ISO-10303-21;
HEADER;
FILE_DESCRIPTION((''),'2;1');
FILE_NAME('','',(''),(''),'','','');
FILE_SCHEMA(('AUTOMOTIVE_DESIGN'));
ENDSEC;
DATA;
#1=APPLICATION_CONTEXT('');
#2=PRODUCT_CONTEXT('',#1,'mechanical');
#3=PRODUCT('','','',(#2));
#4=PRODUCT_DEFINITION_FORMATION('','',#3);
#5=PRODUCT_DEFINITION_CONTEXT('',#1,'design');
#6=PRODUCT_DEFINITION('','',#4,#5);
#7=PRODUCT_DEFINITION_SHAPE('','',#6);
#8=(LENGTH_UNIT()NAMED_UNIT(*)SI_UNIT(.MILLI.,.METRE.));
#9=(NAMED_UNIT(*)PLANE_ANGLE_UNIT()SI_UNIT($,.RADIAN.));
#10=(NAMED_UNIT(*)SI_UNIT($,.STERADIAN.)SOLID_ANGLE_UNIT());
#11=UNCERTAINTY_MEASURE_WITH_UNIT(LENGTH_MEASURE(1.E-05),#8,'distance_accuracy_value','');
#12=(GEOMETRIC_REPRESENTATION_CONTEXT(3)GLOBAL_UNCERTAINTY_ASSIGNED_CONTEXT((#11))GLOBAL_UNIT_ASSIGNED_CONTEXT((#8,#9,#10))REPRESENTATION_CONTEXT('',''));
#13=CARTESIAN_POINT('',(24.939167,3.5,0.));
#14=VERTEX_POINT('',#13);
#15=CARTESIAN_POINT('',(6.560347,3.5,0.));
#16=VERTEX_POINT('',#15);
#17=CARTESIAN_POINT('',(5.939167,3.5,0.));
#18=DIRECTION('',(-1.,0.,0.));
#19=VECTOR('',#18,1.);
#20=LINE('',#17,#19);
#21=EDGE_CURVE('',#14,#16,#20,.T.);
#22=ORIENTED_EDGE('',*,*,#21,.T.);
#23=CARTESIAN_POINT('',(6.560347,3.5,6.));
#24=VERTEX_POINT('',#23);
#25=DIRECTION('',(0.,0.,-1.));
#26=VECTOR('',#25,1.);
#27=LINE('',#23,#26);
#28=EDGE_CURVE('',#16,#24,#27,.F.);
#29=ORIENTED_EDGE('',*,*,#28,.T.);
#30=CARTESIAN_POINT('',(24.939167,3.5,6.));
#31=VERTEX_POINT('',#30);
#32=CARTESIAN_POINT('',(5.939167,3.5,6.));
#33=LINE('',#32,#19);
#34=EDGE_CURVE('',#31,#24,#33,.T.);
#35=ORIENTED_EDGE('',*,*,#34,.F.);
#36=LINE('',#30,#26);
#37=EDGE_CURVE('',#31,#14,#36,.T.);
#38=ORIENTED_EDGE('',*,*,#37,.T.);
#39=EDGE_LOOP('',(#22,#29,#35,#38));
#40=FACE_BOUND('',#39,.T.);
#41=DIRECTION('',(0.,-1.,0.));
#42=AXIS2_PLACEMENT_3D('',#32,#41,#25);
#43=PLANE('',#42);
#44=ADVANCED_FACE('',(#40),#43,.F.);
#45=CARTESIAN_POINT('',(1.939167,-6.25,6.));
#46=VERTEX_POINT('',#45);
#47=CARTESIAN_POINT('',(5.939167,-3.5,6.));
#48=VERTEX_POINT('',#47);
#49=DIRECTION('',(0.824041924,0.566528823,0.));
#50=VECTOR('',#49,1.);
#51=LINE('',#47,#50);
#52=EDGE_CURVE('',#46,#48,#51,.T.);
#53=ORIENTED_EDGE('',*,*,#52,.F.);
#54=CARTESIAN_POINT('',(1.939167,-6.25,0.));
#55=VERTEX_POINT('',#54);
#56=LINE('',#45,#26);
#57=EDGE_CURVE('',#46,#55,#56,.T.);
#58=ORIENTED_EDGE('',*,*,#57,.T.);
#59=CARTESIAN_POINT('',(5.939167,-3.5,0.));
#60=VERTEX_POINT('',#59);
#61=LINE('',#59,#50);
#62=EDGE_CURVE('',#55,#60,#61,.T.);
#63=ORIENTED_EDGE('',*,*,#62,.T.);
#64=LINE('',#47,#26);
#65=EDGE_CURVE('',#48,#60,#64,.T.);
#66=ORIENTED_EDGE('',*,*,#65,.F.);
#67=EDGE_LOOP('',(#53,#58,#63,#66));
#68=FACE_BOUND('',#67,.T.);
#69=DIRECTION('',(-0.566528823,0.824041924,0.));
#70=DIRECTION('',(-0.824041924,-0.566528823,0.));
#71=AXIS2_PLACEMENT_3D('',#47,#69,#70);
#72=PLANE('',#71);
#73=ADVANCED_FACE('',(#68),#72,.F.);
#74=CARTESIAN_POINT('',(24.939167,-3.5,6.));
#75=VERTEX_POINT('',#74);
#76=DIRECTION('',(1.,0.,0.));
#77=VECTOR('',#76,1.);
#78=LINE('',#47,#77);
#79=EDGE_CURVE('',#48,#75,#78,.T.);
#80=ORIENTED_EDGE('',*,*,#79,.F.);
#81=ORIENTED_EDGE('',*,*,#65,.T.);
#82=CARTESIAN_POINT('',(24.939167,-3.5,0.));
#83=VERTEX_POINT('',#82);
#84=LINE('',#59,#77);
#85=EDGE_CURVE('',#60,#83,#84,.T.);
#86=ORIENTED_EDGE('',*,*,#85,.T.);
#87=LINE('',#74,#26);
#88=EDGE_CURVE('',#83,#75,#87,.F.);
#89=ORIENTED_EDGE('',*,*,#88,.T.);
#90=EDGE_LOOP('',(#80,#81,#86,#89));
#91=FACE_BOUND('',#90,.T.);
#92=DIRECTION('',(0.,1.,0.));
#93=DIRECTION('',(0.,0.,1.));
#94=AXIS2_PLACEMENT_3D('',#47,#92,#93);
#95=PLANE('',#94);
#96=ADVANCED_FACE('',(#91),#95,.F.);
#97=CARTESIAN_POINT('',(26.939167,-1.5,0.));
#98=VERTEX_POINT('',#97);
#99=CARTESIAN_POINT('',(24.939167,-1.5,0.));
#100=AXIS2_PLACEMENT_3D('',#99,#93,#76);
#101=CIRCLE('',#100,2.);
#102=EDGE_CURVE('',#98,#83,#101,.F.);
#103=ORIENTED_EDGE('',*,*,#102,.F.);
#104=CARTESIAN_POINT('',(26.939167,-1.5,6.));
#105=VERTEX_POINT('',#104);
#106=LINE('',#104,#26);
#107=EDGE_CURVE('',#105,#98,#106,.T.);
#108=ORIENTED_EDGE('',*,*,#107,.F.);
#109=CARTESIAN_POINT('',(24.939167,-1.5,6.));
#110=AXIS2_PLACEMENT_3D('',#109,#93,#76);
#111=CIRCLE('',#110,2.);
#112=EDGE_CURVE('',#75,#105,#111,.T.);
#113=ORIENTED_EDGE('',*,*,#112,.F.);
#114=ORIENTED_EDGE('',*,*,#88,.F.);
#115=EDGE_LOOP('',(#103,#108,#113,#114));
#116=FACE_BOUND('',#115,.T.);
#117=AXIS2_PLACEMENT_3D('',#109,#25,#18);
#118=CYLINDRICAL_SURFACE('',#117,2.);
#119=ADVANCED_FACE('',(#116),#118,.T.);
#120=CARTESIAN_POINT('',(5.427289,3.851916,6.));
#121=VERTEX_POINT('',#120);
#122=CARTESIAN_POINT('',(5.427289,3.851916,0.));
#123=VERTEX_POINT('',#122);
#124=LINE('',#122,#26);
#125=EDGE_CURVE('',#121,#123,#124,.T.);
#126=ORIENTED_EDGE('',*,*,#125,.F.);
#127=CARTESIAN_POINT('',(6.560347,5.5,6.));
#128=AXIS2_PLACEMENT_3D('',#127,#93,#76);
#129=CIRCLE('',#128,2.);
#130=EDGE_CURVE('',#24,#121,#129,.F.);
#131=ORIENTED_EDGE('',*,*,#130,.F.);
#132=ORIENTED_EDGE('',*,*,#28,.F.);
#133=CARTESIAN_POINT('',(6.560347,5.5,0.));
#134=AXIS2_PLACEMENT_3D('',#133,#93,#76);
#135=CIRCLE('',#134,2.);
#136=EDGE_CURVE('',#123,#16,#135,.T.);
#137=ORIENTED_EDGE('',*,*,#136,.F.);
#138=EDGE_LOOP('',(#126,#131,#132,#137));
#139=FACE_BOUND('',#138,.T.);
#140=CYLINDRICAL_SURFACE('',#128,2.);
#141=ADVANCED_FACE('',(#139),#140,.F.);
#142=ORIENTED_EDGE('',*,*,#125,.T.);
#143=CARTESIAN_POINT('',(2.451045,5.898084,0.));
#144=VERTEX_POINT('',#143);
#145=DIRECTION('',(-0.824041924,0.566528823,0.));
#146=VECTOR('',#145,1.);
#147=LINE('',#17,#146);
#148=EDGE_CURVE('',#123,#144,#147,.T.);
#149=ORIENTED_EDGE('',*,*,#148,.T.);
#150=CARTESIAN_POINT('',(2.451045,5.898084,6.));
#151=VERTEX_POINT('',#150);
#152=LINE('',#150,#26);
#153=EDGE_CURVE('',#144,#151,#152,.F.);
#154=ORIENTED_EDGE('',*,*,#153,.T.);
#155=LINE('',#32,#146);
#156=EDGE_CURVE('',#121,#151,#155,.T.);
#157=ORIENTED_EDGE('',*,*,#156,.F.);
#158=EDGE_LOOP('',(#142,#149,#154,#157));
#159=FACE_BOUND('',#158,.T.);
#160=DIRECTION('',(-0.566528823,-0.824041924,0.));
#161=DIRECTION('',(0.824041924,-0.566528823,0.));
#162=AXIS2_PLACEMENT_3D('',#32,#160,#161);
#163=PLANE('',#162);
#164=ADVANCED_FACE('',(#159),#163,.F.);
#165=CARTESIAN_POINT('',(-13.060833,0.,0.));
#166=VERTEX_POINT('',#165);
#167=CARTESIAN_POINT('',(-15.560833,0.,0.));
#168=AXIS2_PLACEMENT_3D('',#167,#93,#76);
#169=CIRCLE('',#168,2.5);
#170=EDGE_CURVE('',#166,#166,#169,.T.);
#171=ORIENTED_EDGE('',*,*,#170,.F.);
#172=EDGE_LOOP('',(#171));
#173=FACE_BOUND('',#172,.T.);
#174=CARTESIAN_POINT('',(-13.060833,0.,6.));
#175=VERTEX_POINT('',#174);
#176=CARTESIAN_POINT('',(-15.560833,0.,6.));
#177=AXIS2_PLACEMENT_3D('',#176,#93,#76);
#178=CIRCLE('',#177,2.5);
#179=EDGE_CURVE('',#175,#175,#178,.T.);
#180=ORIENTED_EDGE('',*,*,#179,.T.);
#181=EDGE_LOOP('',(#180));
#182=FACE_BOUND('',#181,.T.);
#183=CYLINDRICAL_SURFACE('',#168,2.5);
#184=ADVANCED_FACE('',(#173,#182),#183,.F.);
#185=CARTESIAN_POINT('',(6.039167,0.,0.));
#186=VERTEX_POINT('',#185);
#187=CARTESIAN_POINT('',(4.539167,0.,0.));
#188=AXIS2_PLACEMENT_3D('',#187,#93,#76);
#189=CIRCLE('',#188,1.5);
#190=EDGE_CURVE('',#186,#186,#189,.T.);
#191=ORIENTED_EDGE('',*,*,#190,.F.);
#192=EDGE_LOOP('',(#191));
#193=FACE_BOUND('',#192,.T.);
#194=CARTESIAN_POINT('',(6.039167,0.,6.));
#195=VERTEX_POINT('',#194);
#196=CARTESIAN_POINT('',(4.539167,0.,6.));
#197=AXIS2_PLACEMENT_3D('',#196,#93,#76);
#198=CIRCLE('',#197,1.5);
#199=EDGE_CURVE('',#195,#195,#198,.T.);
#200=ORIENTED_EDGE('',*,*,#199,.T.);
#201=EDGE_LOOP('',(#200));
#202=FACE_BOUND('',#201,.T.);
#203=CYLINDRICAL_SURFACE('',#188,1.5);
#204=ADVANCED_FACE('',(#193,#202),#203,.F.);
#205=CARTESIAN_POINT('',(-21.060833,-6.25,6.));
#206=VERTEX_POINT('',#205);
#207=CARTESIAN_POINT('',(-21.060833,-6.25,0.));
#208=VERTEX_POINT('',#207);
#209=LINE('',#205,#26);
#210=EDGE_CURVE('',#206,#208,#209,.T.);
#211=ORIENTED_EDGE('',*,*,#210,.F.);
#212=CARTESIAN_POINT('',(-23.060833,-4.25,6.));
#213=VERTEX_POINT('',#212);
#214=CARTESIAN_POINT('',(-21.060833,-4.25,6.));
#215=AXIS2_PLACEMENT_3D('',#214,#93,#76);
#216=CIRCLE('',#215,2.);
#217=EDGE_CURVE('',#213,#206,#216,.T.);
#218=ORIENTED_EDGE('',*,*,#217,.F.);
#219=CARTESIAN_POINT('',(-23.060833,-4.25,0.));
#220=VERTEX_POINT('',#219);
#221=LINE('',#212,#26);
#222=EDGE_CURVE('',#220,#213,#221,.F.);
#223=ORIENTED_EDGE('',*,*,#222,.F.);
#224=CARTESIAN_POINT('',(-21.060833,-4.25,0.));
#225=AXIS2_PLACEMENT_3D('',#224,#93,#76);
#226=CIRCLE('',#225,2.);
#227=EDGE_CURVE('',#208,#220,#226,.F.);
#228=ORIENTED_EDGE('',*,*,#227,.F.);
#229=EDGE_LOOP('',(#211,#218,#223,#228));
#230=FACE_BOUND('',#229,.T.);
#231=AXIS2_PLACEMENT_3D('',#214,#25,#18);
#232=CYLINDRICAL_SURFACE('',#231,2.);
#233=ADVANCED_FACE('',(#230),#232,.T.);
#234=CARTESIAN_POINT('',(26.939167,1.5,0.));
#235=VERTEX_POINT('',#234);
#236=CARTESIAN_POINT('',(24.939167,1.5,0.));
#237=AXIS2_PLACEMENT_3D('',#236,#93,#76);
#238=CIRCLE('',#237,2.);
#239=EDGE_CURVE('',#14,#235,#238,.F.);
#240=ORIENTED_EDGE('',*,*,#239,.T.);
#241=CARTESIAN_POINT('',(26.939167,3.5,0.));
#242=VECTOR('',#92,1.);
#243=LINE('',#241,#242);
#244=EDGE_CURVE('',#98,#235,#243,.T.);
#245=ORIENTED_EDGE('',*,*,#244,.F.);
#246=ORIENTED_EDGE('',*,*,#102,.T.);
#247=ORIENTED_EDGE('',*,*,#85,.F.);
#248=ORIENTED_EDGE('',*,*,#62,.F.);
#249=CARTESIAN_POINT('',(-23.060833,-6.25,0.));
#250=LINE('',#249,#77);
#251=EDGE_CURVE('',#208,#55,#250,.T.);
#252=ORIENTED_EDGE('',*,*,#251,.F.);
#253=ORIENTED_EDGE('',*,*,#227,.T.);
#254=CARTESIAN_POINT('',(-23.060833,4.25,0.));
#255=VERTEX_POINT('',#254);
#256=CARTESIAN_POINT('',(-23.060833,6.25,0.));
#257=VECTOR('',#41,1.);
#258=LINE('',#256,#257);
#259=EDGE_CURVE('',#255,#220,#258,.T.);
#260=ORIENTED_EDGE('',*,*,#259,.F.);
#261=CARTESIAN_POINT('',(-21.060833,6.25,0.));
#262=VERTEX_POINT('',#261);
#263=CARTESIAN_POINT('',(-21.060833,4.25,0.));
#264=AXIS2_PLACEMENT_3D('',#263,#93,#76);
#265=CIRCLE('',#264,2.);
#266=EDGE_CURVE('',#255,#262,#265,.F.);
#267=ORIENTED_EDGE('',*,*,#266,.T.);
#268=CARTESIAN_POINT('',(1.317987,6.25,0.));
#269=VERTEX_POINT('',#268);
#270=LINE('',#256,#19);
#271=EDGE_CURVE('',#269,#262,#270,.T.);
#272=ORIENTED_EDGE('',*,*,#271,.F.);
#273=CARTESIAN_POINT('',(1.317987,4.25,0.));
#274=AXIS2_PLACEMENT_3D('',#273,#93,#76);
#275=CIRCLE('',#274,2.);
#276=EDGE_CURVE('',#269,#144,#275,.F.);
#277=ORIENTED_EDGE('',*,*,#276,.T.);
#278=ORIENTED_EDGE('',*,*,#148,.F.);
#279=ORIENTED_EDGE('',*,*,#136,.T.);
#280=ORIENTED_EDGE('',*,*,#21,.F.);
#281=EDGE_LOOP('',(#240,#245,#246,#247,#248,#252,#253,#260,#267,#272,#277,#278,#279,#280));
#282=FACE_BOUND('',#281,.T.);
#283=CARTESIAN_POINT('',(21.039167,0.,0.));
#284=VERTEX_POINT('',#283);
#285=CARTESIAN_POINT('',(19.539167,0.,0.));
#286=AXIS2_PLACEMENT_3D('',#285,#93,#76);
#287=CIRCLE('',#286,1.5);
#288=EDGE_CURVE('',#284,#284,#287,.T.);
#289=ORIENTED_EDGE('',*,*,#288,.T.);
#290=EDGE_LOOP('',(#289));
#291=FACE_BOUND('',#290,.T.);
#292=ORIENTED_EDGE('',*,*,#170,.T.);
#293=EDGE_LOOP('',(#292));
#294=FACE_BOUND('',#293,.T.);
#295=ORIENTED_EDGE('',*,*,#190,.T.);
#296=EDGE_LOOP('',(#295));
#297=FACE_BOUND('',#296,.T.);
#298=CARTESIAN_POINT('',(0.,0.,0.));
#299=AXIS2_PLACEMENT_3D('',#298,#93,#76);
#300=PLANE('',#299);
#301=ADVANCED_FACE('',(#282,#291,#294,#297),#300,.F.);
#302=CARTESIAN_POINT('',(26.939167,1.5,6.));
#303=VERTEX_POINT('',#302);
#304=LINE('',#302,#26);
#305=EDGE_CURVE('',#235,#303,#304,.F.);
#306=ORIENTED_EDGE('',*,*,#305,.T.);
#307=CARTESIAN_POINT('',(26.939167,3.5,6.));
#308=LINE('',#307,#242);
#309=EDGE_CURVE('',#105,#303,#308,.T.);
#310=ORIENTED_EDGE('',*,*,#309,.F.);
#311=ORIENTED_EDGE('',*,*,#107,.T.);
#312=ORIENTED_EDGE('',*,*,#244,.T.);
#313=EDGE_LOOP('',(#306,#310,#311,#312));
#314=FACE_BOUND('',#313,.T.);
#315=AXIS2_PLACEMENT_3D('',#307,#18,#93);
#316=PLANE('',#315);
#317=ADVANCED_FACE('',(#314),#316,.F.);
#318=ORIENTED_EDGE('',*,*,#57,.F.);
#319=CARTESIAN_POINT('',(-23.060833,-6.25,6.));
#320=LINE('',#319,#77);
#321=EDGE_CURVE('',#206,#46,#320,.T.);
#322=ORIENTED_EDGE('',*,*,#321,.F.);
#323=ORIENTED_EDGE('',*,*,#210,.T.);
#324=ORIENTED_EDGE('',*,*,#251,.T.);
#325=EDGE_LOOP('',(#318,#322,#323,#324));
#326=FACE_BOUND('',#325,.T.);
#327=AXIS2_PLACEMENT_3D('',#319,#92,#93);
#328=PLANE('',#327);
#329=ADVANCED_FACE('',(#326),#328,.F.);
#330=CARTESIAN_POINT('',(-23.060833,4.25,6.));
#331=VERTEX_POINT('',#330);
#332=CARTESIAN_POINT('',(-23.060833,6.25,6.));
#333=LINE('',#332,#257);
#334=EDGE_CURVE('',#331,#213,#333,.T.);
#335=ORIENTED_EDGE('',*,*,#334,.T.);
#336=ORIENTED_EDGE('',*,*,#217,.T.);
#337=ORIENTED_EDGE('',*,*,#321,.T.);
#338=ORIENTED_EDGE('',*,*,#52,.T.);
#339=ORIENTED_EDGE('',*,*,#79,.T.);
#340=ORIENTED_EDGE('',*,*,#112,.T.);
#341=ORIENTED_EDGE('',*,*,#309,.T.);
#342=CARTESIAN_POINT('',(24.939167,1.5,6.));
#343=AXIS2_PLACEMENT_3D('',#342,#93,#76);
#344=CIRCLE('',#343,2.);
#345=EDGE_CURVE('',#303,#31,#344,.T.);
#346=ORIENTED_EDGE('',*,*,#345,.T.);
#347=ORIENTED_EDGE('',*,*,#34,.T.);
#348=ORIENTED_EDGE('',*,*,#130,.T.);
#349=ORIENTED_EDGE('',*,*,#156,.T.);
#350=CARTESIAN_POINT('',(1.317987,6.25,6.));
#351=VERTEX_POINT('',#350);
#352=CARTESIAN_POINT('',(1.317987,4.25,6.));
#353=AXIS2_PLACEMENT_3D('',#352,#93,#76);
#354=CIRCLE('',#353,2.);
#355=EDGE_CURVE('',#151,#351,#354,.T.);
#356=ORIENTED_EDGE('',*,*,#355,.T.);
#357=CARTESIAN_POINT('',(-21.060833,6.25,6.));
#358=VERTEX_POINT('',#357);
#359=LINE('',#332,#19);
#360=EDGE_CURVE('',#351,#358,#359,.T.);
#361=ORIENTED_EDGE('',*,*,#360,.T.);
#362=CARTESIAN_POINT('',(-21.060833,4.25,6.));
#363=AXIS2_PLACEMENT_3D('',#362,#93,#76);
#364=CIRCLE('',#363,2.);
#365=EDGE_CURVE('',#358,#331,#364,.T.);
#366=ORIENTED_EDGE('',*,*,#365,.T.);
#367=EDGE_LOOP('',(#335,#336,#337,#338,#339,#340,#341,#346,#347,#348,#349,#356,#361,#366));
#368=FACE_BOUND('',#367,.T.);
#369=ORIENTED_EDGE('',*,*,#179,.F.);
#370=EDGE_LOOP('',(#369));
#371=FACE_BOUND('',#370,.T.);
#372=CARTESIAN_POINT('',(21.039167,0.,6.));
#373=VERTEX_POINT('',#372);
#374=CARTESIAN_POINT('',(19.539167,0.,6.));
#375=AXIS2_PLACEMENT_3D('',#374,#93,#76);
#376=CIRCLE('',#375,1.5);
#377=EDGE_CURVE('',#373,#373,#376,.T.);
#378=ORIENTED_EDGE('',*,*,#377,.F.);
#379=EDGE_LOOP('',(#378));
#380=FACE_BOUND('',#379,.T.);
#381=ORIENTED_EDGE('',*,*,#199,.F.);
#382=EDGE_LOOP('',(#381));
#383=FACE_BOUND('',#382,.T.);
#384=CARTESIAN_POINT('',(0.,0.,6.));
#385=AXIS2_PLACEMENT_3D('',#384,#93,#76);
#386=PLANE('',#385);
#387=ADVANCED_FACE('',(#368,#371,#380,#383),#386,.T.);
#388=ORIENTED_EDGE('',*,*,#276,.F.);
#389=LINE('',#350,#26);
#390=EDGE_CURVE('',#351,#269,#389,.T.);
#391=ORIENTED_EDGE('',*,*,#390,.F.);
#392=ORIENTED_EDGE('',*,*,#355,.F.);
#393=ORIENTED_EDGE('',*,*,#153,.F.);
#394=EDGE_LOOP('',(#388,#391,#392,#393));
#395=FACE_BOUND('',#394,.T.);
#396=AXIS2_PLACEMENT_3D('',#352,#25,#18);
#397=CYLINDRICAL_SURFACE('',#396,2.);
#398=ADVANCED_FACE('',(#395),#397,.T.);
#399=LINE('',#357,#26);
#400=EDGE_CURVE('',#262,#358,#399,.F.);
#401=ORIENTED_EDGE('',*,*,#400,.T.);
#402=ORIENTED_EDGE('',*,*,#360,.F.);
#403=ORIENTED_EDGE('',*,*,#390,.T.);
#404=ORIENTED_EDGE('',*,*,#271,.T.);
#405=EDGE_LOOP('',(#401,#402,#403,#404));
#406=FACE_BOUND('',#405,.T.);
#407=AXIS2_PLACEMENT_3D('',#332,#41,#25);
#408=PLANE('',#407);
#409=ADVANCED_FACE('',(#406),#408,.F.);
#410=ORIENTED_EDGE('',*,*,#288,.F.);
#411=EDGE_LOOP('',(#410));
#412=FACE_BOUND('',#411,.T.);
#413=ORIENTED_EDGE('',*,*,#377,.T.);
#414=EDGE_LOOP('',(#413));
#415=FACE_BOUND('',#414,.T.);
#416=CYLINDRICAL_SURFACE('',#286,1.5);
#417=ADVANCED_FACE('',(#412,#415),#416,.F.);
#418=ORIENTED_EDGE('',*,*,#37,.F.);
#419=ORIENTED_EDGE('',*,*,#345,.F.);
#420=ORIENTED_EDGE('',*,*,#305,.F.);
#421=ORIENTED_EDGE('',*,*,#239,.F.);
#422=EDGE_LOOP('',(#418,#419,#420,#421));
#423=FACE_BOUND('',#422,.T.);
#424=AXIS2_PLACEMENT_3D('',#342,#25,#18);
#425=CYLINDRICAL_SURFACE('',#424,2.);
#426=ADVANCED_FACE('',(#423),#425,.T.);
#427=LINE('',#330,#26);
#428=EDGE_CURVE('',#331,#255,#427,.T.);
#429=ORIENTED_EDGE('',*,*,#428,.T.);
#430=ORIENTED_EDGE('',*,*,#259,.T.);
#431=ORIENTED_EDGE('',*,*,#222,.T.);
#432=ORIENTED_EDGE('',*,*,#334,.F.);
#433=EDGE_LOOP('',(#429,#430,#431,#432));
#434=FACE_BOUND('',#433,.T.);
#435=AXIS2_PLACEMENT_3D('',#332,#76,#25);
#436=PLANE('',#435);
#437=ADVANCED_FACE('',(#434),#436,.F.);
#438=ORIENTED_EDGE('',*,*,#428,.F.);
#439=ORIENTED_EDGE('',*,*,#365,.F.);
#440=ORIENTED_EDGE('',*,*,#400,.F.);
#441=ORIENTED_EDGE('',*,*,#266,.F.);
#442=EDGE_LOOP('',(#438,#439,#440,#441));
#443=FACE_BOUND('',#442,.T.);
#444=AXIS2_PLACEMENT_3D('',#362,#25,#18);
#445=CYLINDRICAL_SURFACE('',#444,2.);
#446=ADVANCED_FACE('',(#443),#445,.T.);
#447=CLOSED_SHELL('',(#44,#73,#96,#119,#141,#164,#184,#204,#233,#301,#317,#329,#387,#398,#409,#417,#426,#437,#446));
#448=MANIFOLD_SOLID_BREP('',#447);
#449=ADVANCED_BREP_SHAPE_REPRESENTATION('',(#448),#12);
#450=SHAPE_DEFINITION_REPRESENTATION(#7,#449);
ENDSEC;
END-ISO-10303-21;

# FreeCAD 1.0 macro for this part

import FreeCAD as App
import Part
import Sketcher
Q = App.Units.Quantity


def edges_at(feature, points):
    """Names of the edges that pass closest to the given points."""
    edges = feature.Shape.Edges
    near = lambda p: min(range(len(edges)), key=lambda i: edges[i].distToShape(Part.Vertex(*p))[0])
    return sorted({f"Edge{near(p) + 1}" for p in points})


def add_polygon(sketch, points):
    """Adds a closed chain of lines whose ends are joined by coincident constraints."""
    first, n = sketch.GeometryCount, len(points)
    for a, b in zip(points, points[1:] + points[:1]):
        sketch.addGeometry(Part.LineSegment(App.Vector(*a, 0), App.Vector(*b, 0)), False)
    for i in range(n):
        sketch.addConstraint(Sketcher.Constraint("Coincident", first + i, 2, first + (i + 1) % n, 1))

doc = App.newDocument("Part")
body = doc.addObject("PartDesign::Body", "Body")

sketch1 = body.newObject("Sketcher::SketchObject", "Sketch")
sketch1.AttachmentSupport = (doc.getObject("XY_Plane"), [""])
sketch1.MapMode = "FlatFace"
add_polygon(sketch1, [(26.9, 3.5), (5.9, 3.5), (1.9, 6.2), (-23.1, 6.2), (-23.1, -6.2), (1.9, -6.2), (5.9, -3.5), (26.9, -3.5)])
sketch1.addConstraint(Sketcher.Constraint("Horizontal", 0))
sketch1.addConstraint(Sketcher.Constraint("Horizontal", 2))
sketch1.addConstraint(Sketcher.Constraint("Vertical", 3))
sketch1.addConstraint(Sketcher.Constraint("Horizontal", 4))
sketch1.addConstraint(Sketcher.Constraint("Horizontal", 6))
sketch1.addConstraint(Sketcher.Constraint("Vertical", 7))
sketch1.addConstraint(Sketcher.Constraint("Symmetric", 1, 2, 4, 2, -1))
sketch1.addConstraint(Sketcher.Constraint("Symmetric", 0, 2, 5, 2, -1))
sketch1.addConstraint(Sketcher.Constraint("DistanceX", 0, 2, 0, 1, Q("21 mm")))
sketch1.addConstraint(Sketcher.Constraint("DistanceX", 2, 2, 2, 1, Q("25 mm")))
sketch1.addConstraint(Sketcher.Constraint("DistanceY", 7, 1, 7, 2, Q("7 mm")))
sketch1.addConstraint(Sketcher.Constraint("DistanceY", 3, 2, 3, 1, Q("12.5 mm")))
sketch1.addConstraint(Sketcher.Constraint("DistanceX", 1, 2, 0, 2, Q("4 mm")))
sketch1.addConstraint(Sketcher.Constraint("DistanceX", -1, 1, 0, 2, Q("5.939167 mm")))
pad1 = body.newObject("PartDesign::Pad", "Pad")
pad1.Profile = sketch1
pad1.Length = 6

sketch2 = body.newObject("Sketcher::SketchObject", "Sketch001")
sketch2.AttachmentSupport = (doc.getObject("XY_Plane"), [""])
sketch2.MapMode = "FlatFace"
sketch2.AttachmentOffset = App.Placement(App.Vector(0, 0, 6), App.Rotation())
sketch2.addGeometry(Part.Circle(App.Vector(-15.6, 0, 0), App.Vector(0, 0, 1), 2.5), False)
sketch2.addGeometry(Part.Circle(App.Vector(4.5, 0, 0), App.Vector(0, 0, 1), 1.5), False)
sketch2.addGeometry(Part.Circle(App.Vector(19.5, 0, 0), App.Vector(0, 0, 1), 1.5), False)
sketch2.addConstraint(Sketcher.Constraint("Equal", 1, 2))
sketch2.addConstraint(Sketcher.Constraint("PointOnObject", 0, 3, -1))
sketch2.addConstraint(Sketcher.Constraint("PointOnObject", 1, 3, -1))
sketch2.addConstraint(Sketcher.Constraint("PointOnObject", 2, 3, -1))
sketch2.addConstraint(Sketcher.Constraint("Diameter", 0, Q("5 mm")))
sketch2.addConstraint(Sketcher.Constraint("Diameter", 1, Q("3 mm")))
sketch2.addConstraint(Sketcher.Constraint("DistanceX", 1, 3, 2, 3, Q("15 mm")))
sketch2.addConstraint(Sketcher.Constraint("DistanceX", 0, 3, 1, 3, Q("20.1 mm")))
sketch2.addConstraint(Sketcher.Constraint("DistanceX", 0, 3, -1, 1, Q("15.560833 mm")))
pocket1 = body.newObject("PartDesign::Pocket", "Pocket")
pocket1.Profile = sketch2
pocket1.Type = "ThroughAll"
doc.recompute()

fillet = body.newObject("PartDesign::Fillet", "Fillet")
fillet.Base = (pocket1, edges_at(pocket1, [
    (-23.061, 6.25, 3),
    (1.939, 6.25, 3),
    (5.939, 3.5, 3),
    (26.939, 3.5, 3),
    (26.939, -3.5, 3),
    (-23.061, -6.25, 3),
]))
fillet.Radius = 2

doc.recompute()
